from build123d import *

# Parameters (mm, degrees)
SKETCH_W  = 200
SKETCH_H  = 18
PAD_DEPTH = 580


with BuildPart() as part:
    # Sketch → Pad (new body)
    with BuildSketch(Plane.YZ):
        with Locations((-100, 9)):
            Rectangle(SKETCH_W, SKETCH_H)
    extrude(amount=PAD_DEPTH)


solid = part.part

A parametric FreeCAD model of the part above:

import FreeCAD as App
import Part
import Sketcher


def add_polygon(sketch, points):
    """Adds a closed chain of lines whose ends are joined by coincident constraints."""
    first, n = sketch.GeometryCount, len(points)
    for a, b in zip(points, points[1:] + points[:1]):
        sketch.addGeometry(Part.LineSegment(App.Vector(*a, 0), App.Vector(*b, 0)), False)
    for i in range(n):
        sketch.addConstraint(Sketcher.Constraint("Coincident", first + i, 2, first + (i + 1) % n, 1))

doc = App.newDocument("Part")
body = doc.addObject("PartDesign::Body", "Body")

# Sketch on YZ plane
sketch1 = body.newObject("Sketcher::SketchObject", "Sketch")
sketch1.AttachmentSupport = (doc.getObject("YZ_Plane"), [""])
sketch1.MapMode = "FlatFace"
add_polygon(sketch1, [(-200, 18), (-200, 0), (0, 0), (0, 18)])  # lines 0-3
sketch1.addConstraint(Sketcher.Constraint("Vertical", 0))
sketch1.addConstraint(Sketcher.Constraint("Horizontal", 1))
sketch1.addConstraint(Sketcher.Constraint("Vertical", 2))
sketch1.addConstraint(Sketcher.Constraint("Horizontal", 3))
sketch1.addConstraint(Sketcher.Constraint("Coincident", 1, 2, -1, 1))
sketch1.addConstraint(Sketcher.Constraint("DistanceX", 1, 1, 1, 2, 200.0))
sketch1.addConstraint(Sketcher.Constraint("DistanceY", 0, 2, 0, 1, 18.0))
pad1 = body.newObject("PartDesign::Pad", "Pad")
pad1.Profile = sketch1
pad1.Length = 580

doc.recompute()
